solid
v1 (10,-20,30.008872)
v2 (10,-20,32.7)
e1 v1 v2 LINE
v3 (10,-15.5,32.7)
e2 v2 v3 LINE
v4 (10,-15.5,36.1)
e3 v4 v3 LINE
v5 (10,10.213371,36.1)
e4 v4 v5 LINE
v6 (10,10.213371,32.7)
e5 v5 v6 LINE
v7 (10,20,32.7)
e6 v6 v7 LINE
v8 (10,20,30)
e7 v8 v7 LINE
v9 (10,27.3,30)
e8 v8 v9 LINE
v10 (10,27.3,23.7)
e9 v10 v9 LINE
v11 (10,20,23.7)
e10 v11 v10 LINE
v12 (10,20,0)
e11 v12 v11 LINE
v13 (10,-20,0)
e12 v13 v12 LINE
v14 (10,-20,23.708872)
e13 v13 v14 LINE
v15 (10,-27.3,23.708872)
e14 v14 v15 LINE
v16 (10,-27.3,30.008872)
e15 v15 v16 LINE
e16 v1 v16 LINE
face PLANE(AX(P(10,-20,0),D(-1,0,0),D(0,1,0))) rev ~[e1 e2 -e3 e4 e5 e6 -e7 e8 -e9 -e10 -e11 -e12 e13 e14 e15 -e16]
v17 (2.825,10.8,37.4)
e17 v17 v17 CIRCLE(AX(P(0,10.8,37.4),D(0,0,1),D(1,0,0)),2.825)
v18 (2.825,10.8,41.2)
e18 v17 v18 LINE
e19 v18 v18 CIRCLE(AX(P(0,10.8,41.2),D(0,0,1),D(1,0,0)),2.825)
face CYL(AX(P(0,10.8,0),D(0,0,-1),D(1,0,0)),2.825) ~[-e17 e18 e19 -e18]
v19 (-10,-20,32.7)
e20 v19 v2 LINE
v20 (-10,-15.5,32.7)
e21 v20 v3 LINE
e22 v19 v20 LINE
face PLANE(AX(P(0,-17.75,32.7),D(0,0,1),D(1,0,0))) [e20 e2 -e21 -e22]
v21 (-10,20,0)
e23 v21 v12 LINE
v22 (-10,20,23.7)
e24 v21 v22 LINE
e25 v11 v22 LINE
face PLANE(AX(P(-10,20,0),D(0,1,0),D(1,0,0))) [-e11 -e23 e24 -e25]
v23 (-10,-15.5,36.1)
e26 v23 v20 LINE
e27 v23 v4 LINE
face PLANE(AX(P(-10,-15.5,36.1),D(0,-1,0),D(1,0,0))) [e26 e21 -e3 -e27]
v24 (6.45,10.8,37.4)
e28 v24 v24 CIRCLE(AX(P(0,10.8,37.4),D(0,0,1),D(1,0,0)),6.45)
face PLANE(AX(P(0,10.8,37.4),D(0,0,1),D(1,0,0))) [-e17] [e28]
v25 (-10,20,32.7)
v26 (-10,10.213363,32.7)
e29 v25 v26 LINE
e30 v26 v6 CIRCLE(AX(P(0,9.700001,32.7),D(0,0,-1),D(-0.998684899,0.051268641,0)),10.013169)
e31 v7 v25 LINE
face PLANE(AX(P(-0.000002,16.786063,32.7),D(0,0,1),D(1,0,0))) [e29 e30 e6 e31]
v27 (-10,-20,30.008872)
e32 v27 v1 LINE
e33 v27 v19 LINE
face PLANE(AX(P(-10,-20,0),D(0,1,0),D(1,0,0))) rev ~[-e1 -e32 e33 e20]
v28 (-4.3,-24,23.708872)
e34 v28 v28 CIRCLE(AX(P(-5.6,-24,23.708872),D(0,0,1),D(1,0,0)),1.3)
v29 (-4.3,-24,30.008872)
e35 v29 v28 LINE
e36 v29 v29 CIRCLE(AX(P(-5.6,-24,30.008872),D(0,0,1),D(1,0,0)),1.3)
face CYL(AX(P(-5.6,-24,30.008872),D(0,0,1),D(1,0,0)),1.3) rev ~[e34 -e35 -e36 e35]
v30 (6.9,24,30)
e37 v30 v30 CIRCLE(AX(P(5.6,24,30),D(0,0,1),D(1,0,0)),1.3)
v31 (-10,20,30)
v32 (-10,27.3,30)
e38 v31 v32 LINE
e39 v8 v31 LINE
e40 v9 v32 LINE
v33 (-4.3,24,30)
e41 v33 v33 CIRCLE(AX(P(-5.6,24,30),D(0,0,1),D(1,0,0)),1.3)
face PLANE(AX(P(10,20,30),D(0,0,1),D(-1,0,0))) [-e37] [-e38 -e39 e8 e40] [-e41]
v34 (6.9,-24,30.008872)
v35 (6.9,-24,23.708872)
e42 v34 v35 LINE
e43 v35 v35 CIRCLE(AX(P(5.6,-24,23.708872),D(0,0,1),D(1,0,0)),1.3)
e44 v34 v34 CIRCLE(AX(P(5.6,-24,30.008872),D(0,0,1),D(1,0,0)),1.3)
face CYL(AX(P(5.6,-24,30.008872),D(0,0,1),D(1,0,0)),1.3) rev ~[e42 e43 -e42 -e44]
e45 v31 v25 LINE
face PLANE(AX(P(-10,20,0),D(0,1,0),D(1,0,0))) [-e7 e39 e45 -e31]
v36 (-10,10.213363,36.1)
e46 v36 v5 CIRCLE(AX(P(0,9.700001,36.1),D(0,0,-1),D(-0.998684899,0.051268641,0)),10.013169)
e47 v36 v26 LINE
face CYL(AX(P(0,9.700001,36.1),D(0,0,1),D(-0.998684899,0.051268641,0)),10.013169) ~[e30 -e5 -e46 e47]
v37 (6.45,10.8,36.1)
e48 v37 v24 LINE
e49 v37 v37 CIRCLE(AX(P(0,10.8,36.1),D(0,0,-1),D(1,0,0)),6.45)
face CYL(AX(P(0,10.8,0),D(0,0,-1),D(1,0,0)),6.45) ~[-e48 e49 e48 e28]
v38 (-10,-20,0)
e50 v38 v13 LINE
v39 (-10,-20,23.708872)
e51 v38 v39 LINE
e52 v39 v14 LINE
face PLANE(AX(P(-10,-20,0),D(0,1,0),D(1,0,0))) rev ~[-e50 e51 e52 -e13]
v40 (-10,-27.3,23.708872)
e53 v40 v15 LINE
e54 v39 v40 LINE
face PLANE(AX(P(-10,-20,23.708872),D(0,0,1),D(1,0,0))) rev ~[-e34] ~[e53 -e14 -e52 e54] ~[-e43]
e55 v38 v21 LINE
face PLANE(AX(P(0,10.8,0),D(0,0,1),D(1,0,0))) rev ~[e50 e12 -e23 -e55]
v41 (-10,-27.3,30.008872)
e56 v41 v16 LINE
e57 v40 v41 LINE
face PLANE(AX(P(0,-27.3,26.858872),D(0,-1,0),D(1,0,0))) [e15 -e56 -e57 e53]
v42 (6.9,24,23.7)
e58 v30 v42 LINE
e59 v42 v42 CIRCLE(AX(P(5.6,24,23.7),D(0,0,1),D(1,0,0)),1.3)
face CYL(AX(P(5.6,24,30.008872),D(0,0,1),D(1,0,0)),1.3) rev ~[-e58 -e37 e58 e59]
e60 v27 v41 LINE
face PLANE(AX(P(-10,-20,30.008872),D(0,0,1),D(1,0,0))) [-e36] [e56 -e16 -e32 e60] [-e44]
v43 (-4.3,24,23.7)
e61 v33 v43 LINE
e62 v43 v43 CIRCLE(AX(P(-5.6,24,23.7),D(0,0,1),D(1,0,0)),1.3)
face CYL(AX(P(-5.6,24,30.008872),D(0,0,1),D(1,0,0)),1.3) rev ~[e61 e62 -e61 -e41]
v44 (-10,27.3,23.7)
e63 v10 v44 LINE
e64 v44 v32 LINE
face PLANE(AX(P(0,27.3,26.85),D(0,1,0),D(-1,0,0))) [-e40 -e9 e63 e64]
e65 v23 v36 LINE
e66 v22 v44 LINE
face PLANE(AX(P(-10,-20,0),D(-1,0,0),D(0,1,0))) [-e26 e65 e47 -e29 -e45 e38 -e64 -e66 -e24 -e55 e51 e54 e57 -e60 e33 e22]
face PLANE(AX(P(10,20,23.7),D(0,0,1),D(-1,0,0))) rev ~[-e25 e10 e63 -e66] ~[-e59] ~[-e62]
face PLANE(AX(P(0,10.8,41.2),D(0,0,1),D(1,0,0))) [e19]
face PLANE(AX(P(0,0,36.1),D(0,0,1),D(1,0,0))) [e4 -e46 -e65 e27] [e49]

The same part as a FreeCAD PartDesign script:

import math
import FreeCAD as App
import Part
import Sketcher

doc = App.newDocument("Part")
body = doc.addObject("PartDesign::Body", "Body")

sketch1 = body.newObject("Sketcher::SketchObject", "Sketch")
sketch1.AttachmentSupport = (doc.getObject("XY_Plane"), [""])
sketch1.MapMode = "FlatFace"
sketch1.addGeometry([
    Part.LineSegment(App.Vector(-10, 20, 0), App.Vector(-10, -20, 0)),
    Part.LineSegment(App.Vector(-10, -20, 0), App.Vector(10, -20, 0)),
    Part.LineSegment(App.Vector(10, -20, 0), App.Vector(10, 20, 0)),
    Part.LineSegment(App.Vector(10, 20, 0), App.Vector(-10, 20, 0)),
], False)
sketch1.addConstraint([
    Sketcher.Constraint("Coincident", 0, 2, 1, 1),
    Sketcher.Constraint("Coincident", 1, 2, 2, 1),
    Sketcher.Constraint("Coincident", 2, 2, 3, 1),
    Sketcher.Constraint("Coincident", 3, 2, 0, 1),
    Sketcher.Constraint("Vertical", 0),
    Sketcher.Constraint("Horizontal", 1),
    Sketcher.Constraint("Vertical", 2),
    Sketcher.Constraint("Horizontal", 3),
    Sketcher.Constraint("Symmetric", 0, 2, 2, 2, -1, 1),
    Sketcher.Constraint("DistanceX", 1, 1, 1, 2, 20.0),
    Sketcher.Constraint("DistanceY", 0, 2, 0, 1, 40.0),
])
pad1 = body.newObject("PartDesign::Pad", "Pad")
pad1.Profile = sketch1
pad1.Length = 36.1

sketch2 = body.newObject("Sketcher::SketchObject", "Sketch001")
sketch2.AttachmentSupport = (doc.getObject("XZ_Plane"), [""])
sketch2.MapMode = "FlatFace"
sketch2.AttachmentOffset = App.Placement(App.Vector(0, 0, -20), App.Rotation())
sketch2.addGeometry([
    Part.LineSegment(App.Vector(10, 30, 0), App.Vector(10, 23.7, 0)),
    Part.LineSegment(App.Vector(10, 23.7, 0), App.Vector(-10, 23.7, 0)),
    Part.LineSegment(App.Vector(-10, 23.7, 0), App.Vector(-10, 30, 0)),
    Part.LineSegment(App.Vector(-10, 30, 0), App.Vector(10, 30, 0)),
], False)
sketch2.addConstraint([
    Sketcher.Constraint("Coincident", 0, 2, 1, 1),
    Sketcher.Constraint("Coincident", 1, 2, 2, 1),
    Sketcher.Constraint("Coincident", 2, 2, 3, 1),
    Sketcher.Constraint("Coincident", 3, 2, 0, 1),
    Sketcher.Constraint("Vertical", 0),
    Sketcher.Constraint("Horizontal", 1),
    Sketcher.Constraint("Vertical", 2),
    Sketcher.Constraint("Horizontal", 3),
    Sketcher.Constraint("DistanceX", 1, 2, 1, 1, 20.0),
    Sketcher.Constraint("DistanceY", 0, 2, 0, 1, 6.3),
    Sketcher.Constraint("DistanceX", -1, 1, 0, 2, 10.0),
    Sketcher.Constraint("DistanceY", -1, 1, 2, 2, 30.0),
])
pad2 = body.newObject("PartDesign::Pad", "Pad001")
pad2.Profile = sketch2
pad2.Length = 7.3
pad2.Reversed = True

sketch3 = body.newObject("Sketcher::SketchObject", "Sketch002")
sketch3.AttachmentSupport = (doc.getObject("XZ_Plane"), [""])
sketch3.MapMode = "FlatFace"
sketch3.AttachmentOffset = App.Placement(App.Vector(0, 0, 20), App.Rotation())
sketch3.addGeometry([
    Part.LineSegment(App.Vector(-10, 30.008872, 0), App.Vector(-10, 23.708872, 0)),
    Part.LineSegment(App.Vector(-10, 23.708872, 0), App.Vector(10, 23.708872, 0)),
    Part.LineSegment(App.Vector(10, 23.708872, 0), App.Vector(10, 30.008872, 0)),
    Part.LineSegment(App.Vector(10, 30.008872, 0), App.Vector(-10, 30.008872, 0)),
], False)
sketch3.addConstraint([
    Sketcher.Constraint("Coincident", 0, 2, 1, 1),
    Sketcher.Constraint("Coincident", 1, 2, 2, 1),
    Sketcher.Constraint("Coincident", 2, 2, 3, 1),
    Sketcher.Constraint("Coincident", 3, 2, 0, 1),
    Sketcher.Constraint("Vertical", 0),
    Sketcher.Constraint("Horizontal", 1),
    Sketcher.Constraint("Vertical", 2),
    Sketcher.Constraint("Horizontal", 3),
    Sketcher.Constraint("DistanceX", 1, 1, 1, 2, 20.0),
    Sketcher.Constraint("DistanceY", 0, 2, 0, 1, 6.3),
    Sketcher.Constraint("DistanceX", 0, 2, -1, 1, 10.0),
    Sketcher.Constraint("DistanceY", -1, 1, 0, 2, 23.708872),
])
pad3 = body.newObject("PartDesign::Pad", "Pad002")
pad3.Profile = sketch3
pad3.Length = 7.3

sketch4 = body.newObject("Sketcher::SketchObject", "Sketch003")
sketch4.AttachmentSupport = (doc.getObject("XY_Plane"), [""])
sketch4.MapMode = "FlatFace"
sketch4.addGeometry(Part.Circle(App.Vector(0, 10.8, 0), App.Vector(0, 0, 1), 2.825), False)
sketch4.addConstraint([
    Sketcher.Constraint("PointOnObject", 0, 3, -2),
    Sketcher.Constraint("Diameter", 0, 5.65),
    Sketcher.Constraint("DistanceY", -1, 1, 0, 3, 10.8),
])
pad4 = body.newObject("PartDesign::Pad", "Pad003")
pad4.Profile = sketch4
pad4.Length = 41.2

sketch5 = body.newObject("Sketcher::SketchObject", "Sketch004")
sketch5.AttachmentSupport = (doc.getObject("XY_Plane"), [""])
sketch5.MapMode = "FlatFace"
sketch5.addGeometry([
    Part.Circle(App.Vector(0, 10.8, 0), App.Vector(0, 0, 1), 6.45),
    Part.Circle(App.Vector(0, 10.8, 0), App.Vector(0, 0, 1), 2.825),
], False)
sketch5.addConstraint([
    Sketcher.Constraint("Coincident", 1, 3, 0, 3),
    Sketcher.Constraint("PointOnObject", 0, 3, -2),
    Sketcher.Constraint("Diameter", 0, 12.9),
    Sketcher.Constraint("Diameter", 1, 5.65),
    Sketcher.Constraint("DistanceY", -1, 1, 0, 3, 10.8),
])
pad5 = body.newObject("PartDesign::Pad", "Pad004")
pad5.Profile = sketch5
pad5.Length = 37.4

sketch6 = body.newObject("Sketcher::SketchObject", "Sketch005")
sketch6.AttachmentSupport = (doc.getObject("XY_Plane"), [""])
sketch6.MapMode = "FlatFace"
sketch6.AttachmentOffset = App.Placement(App.Vector(0, 0, 36.1), App.Rotation())
sketch6.addGeometry([
    Part.LineSegment(App.Vector(-10, 20, 0), App.Vector(-10, 10.213363, 0)),
    Part.ArcOfCircle(Part.Circle(App.Vector(0, 9.700001, 0), App.Vector(0, 0, 1), 10.013169), math.radians(2.938811), math.radians(177.061235)),
    Part.LineSegment(App.Vector(10, 10.213371, 0), App.Vector(10, 20, 0)),
    Part.LineSegment(App.Vector(10, 20, 0), App.Vector(-10, 20, 0)),
    Part.LineSegment(App.Vector(-10, -15.5, 0), App.Vector(-10, -20, 0)),
    Part.LineSegment(App.Vector(-10, -20, 0), App.Vector(10, -20, 0)),
    Part.LineSegment(App.Vector(10, -20, 0), App.Vector(10, -15.5, 0)),
    Part.LineSegment(App.Vector(10, -15.5, 0), App.Vector(-10, -15.5, 0)),
], False)
sketch6.addConstraint([
    Sketcher.Constraint("Coincident", 0, 2, 1, 2),
    Sketcher.Constraint("Coincident", 1, 1, 2, 1),
    Sketcher.Constraint("Coincident", 2, 2, 3, 1),
    Sketcher.Constraint("Coincident", 3, 2, 0, 1),
    Sketcher.Constraint("Coincident", 4, 2, 5, 1),
    Sketcher.Constraint("Coincident", 5, 2, 6, 1),
    Sketcher.Constraint("Coincident", 6, 2, 7, 1),
    Sketcher.Constraint("Coincident", 7, 2, 4, 1),
    Sketcher.Constraint("Vertical", 0),
    Sketcher.Constraint("Vertical", 2),
    Sketcher.Constraint("Horizontal", 3),
    Sketcher.Constraint("Vertical", 4),
    Sketcher.Constraint("Horizontal", 5),
    Sketcher.Constraint("Vertical", 6),
    Sketcher.Constraint("Horizontal", 7),
    Sketcher.Constraint("Symmetric", 2, 2, 4, 2, -1, 1),
    Sketcher.Constraint("Symmetric", 0, 2, 1, 1, -2),
    Sketcher.Constraint("Vertical", 2, 2, 5, 2),
    Sketcher.Constraint("DistanceX", 3, 2, 3, 1, 20.0),
    Sketcher.Constraint("DistanceY", 4, 2, 4, 1, 4.5),
    Sketcher.Constraint("DistanceY", -1, 1, 2, 2, 20.0),
    Sketcher.Constraint("DistanceY", -1, 1, 1, 3, 9.700001),
    Sketcher.Constraint("Radius", 1, 10.013169),
])
pocket1 = body.newObject("PartDesign::Pocket", "Pocket")
pocket1.Profile = sketch6
pocket1.Length = 3.4

sketch7 = body.newObject("Sketcher::SketchObject", "Sketch006")
sketch7.AttachmentSupport = (doc.getObject("XY_Plane"), [""])
sketch7.MapMode = "FlatFace"
sketch7.AttachmentOffset = App.Placement(App.Vector(0, 0, 30.008872), App.Rotation())
sketch7.addGeometry([
    Part.Circle(App.Vector(5.6, -24, 0), App.Vector(0, 0, 1), 1.3),
    Part.Circle(App.Vector(-5.6, -24, 0), App.Vector(0, 0, 1), 1.3),
    Part.Circle(App.Vector(5.6, 24, 0), App.Vector(0, 0, 1), 1.3),
    Part.Circle(App.Vector(-5.6, 24, 0), App.Vector(0, 0, 1), 1.3),
], False)
sketch7.addConstraint([
    Sketcher.Constraint("Equal", 0, 1),
    Sketcher.Constraint("Equal", 1, 2),
    Sketcher.Constraint("Equal", 2, 3),
    Sketcher.Constraint("Symmetric", 1, 3, 2, 3, -1, 1),
    Sketcher.Constraint("Symmetric", 0, 3, 3, 3, -1, 1),
    Sketcher.Constraint("Symmetric", 0, 3, 1, 3, -2),
    Sketcher.Constraint("Diameter", 0, 2.6),
    Sketcher.Constraint("DistanceY", 0, 3, -1, 1, 24.0),
    Sketcher.Constraint("DistanceX", -1, 1, 0, 3, 5.6),
])
pocket2 = body.newObject("PartDesign::Pocket", "Pocket001")
pocket2.Profile = sketch7
pocket2.Length = 8

doc.recompute()
